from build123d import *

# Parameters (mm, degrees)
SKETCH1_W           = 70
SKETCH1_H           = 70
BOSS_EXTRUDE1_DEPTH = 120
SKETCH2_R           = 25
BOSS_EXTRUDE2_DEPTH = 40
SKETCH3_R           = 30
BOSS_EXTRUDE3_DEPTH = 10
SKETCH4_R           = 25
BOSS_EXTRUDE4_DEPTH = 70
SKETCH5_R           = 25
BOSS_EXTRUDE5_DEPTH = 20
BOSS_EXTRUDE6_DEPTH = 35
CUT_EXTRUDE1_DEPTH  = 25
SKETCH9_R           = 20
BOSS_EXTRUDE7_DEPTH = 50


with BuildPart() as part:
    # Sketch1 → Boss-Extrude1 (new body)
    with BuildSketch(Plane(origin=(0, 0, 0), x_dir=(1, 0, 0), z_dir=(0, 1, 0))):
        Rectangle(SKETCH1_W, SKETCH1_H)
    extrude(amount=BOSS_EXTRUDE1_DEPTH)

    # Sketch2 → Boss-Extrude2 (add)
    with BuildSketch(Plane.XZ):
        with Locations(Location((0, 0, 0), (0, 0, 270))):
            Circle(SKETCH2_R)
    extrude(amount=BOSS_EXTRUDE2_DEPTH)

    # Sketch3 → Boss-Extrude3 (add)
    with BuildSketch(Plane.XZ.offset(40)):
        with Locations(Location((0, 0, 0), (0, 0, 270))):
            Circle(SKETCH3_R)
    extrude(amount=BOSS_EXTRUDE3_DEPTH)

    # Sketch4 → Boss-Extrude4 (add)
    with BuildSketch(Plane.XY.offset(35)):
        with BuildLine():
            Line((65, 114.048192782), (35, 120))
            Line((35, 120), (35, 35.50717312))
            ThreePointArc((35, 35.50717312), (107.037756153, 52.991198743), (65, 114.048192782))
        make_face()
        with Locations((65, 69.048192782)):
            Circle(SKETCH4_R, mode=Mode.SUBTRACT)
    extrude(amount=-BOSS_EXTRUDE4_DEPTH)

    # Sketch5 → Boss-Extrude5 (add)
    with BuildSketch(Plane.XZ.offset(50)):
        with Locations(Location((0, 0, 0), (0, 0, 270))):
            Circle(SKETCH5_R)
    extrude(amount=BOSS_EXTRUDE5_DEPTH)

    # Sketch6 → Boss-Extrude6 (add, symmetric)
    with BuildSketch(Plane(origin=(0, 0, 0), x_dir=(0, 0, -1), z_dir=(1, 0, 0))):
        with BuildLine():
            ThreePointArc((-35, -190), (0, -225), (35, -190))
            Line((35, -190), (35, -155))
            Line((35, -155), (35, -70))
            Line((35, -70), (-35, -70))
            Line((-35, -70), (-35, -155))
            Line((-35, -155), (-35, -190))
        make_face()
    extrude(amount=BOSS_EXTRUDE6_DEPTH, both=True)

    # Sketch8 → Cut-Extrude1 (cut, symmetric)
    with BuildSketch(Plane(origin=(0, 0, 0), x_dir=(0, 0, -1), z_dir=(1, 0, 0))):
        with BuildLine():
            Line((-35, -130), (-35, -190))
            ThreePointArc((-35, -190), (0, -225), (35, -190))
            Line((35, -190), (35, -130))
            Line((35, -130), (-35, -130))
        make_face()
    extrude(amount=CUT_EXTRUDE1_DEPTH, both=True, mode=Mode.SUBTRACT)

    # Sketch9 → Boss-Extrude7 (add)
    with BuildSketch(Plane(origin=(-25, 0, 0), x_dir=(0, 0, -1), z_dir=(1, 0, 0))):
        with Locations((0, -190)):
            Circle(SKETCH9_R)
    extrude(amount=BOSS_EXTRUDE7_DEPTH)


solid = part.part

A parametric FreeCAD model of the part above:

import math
import FreeCAD as App
import Part
import Sketcher

V = App.Vector


def add_polygon(sketch, points):
    """Adds a closed chain of lines whose ends are joined by coincident constraints."""
    first, n = sketch.GeometryCount, len(points)
    for a, b in zip(points, points[1:] + points[:1]):
        sketch.addGeometry(Part.LineSegment(App.Vector(*a, 0), App.Vector(*b, 0)), False)
    for i in range(n):
        sketch.addConstraint(Sketcher.Constraint("Coincident", first + i, 2, first + (i + 1) % n, 1))

doc = App.newDocument("Part")
params = doc.addObject("Spreadsheet::Sheet", "Params")
for row, (alias, value) in enumerate([
    ("sketch1_width", "70 mm"),
    ("pad1_length", "120 mm"),
    ("sketch2_diameter", "50 mm"),
    ("pad2_length", "40 mm"),
    ("sketch3_diameter", "60 mm"),
    ("pad3_length", "10 mm"),
    ("sketch4_diameter", "50 mm"),
    ("sketch4_radius", "45 mm"),
    ("pad4_length", "70 mm"),
    ("sketch5_diameter", "50 mm"),
    ("pad5_length", "20 mm"),
    ("sketch6_radius", "35 mm"),
    ("sketch6_width", "120 mm"),
    ("pad6_length", "70 mm"),
    ("sketch7_radius", "35 mm"),
    ("sketch7_width", "60 mm"),
    ("pocket1_length", "50 mm"),
    ("sketch8_diameter", "40 mm"),
    ("pad7_length", "50 mm"),
], start=1):
    params.set(f"A{row}", alias)
    params.set(f"B{row}", "=" + value)
    params.setAlias(f"B{row}", alias)

body = doc.addObject("PartDesign::Body", "Body")

# Sketch on XZ plane
sketch1 = body.newObject("Sketcher::SketchObject", "Sketch")
sketch1.AttachmentSupport = (doc.getObject("XZ_Plane"), [""])
sketch1.MapMode = "FlatFace"
add_polygon(sketch1, [(-35, -35), (-35, 35), (35, 35), (35, -35)])  # lines 0-3
sketch1.addConstraint(Sketcher.Constraint("Vertical", 0))
sketch1.addConstraint(Sketcher.Constraint("Horizontal", 1))
sketch1.addConstraint(Sketcher.Constraint("Vertical", 2))
sketch1.addConstraint(Sketcher.Constraint("Horizontal", 3))
sketch1.addConstraint(Sketcher.Constraint("Symmetric", 0, 2, 2, 2, -1, 1))
sketch1.addConstraint(Sketcher.Constraint("Equal", 3, 0))
sketch1.addConstraint(Sketcher.Constraint("DistanceX", 1, 1, 1, 2, 70.0))
sketch1.setExpression("Constraints[10]", "Params.sketch1_width")
pad1 = body.newObject("PartDesign::Pad", "Pad")
pad1.Profile = sketch1
pad1.setExpression("Length", "Params.pad1_length")
pad1.Reversed = True

# Sketch on XZ plane
sketch2 = body.newObject("Sketcher::SketchObject", "Sketch001")
sketch2.AttachmentSupport = (doc.getObject("XZ_Plane"), [""])
sketch2.MapMode = "FlatFace"
sketch2.addGeometry(Part.Circle(V(0, 0, 0), V(0, 0, 1), 25), False)
sketch2.addConstraint(Sketcher.Constraint("Coincident", 0, 3, -1, 1))
sketch2.addConstraint(Sketcher.Constraint("Diameter", 0, 50.0))
sketch2.setExpression("Constraints[1]", "Params.sketch2_diameter")
pad2 = body.newObject("PartDesign::Pad", "Pad001")
pad2.Profile = sketch2
pad2.setExpression("Length", "Params.pad2_length")

# Sketch on XZ plane
sketch3 = body.newObject("Sketcher::SketchObject", "Sketch002")
sketch3.AttachmentSupport = (doc.getObject("XZ_Plane"), [""])
sketch3.MapMode = "FlatFace"
sketch3.AttachmentOffset = App.Placement(V(0, 0, 40), App.Rotation())
sketch3.addGeometry(Part.Circle(V(0, 0, 0), V(0, 0, 1), 30), False)
sketch3.addConstraint(Sketcher.Constraint("Coincident", 0, 3, -1, 1))
sketch3.addConstraint(Sketcher.Constraint("Diameter", 0, 60.0))
sketch3.setExpression("Constraints[1]", "Params.sketch3_diameter")
pad3 = body.newObject("PartDesign::Pad", "Pad002")
pad3.Profile = sketch3
pad3.setExpression("Length", "Params.pad3_length")

# Sketch on XY plane
sketch4 = body.newObject("Sketcher::SketchObject", "Sketch003")
sketch4.AttachmentSupport = (doc.getObject("XY_Plane"), [""])
sketch4.MapMode = "FlatFace"
sketch4.AttachmentOffset = App.Placement(V(0, 0, 35), App.Rotation())
sketch4.addGeometry(Part.LineSegment(V(65, 114.048193, 0), V(35, 120, 0)), False)
sketch4.addGeometry(Part.LineSegment(V(35, 120, 0), V(35, 35.507173, 0)), False)
sketch4.addGeometry(Part.ArcOfCircle(Part.Circle(V(65, 69.048193, 0), V(0, 0, 1), 45), math.radians(-131.810315), math.radians(90)), False)
sketch4.addGeometry(Part.Circle(V(65, 69.048193, 0), V(0, 0, 1), 25), False)
sketch4.addConstraint(Sketcher.Constraint("Coincident", 0, 2, 1, 1))
sketch4.addConstraint(Sketcher.Constraint("Coincident", 1, 2, 2, 1))
sketch4.addConstraint(Sketcher.Constraint("Coincident", 2, 2, 0, 1))
sketch4.addConstraint(Sketcher.Constraint("Vertical", 1))
sketch4.addConstraint(Sketcher.Constraint("Coincident", 3, 3, 2, 3))
sketch4.addConstraint(Sketcher.Constraint("Vertical", 3, 3, 2, 2))
sketch4.addConstraint(Sketcher.Constraint("Diameter", 3, 50.0))
sketch4.addConstraint(Sketcher.Constraint("Radius", 2, 45.0))
sketch4.addConstraint(Sketcher.Constraint("DistanceX", -1, 1, 2, 3, 65.0))
sketch4.addConstraint(Sketcher.Constraint("DistanceX", -1, 1, 0, 2, 35.0))
sketch4.addConstraint(Sketcher.Constraint("DistanceY", -1, 1, 0, 2, 120.0))
sketch4.addConstraint(Sketcher.Constraint("DistanceY", 1, 2, 1, 1, 84.492827))
sketch4.setExpression("Constraints[6]", "Params.sketch4_diameter")
sketch4.setExpression("Constraints[7]", "Params.sketch4_radius")
pad4 = body.newObject("PartDesign::Pad", "Pad003")
pad4.Profile = sketch4
pad4.setExpression("Length", "Params.pad4_length")
pad4.Reversed = True

# Sketch on XZ plane
sketch5 = body.newObject("Sketcher::SketchObject", "Sketch004")
sketch5.AttachmentSupport = (doc.getObject("XZ_Plane"), [""])
sketch5.MapMode = "FlatFace"
sketch5.AttachmentOffset = App.Placement(V(0, 0, 50), App.Rotation())
sketch5.addGeometry(Part.Circle(V(0, 0, 0), V(0, 0, 1), 25), False)
sketch5.addConstraint(Sketcher.Constraint("Coincident", 0, 3, -1, 1))
sketch5.addConstraint(Sketcher.Constraint("Diameter", 0, 50.0))
sketch5.setExpression("Constraints[1]", "Params.sketch5_diameter")
pad5 = body.newObject("PartDesign::Pad", "Pad004")
pad5.Profile = sketch5
pad5.setExpression("Length", "Params.pad5_length")

# Sketch on YZ plane
sketch6 = body.newObject("Sketcher::SketchObject", "Sketch005")
sketch6.AttachmentSupport = (doc.getObject("YZ_Plane"), [""])
sketch6.MapMode = "FlatFace"
sketch6.addGeometry(Part.ArcOfCircle(Part.Circle(V(-190, 0, 0), V(0, 0, 1), 35), math.radians(90), math.radians(270)), False)
sketch6.addGeometry(Part.LineSegment(V(-190, -35, 0), V(-70, -35, 0)), False)
sketch6.addGeometry(Part.LineSegment(V(-70, -35, 0), V(-70, 35, 0)), False)
sketch6.addGeometry(Part.LineSegment(V(-70, 35, 0), V(-190, 35, 0)), False)
sketch6.addConstraint(Sketcher.Constraint("Tangent", 0, 2, 1, 1))
sketch6.addConstraint(Sketcher.Constraint("Coincident", 1, 2, 2, 1))
sketch6.addConstraint(Sketcher.Constraint("Coincident", 2, 2, 3, 1))
sketch6.addConstraint(Sketcher.Constraint("Tangent", 3, 2, 0, 1))
sketch6.addConstraint(Sketcher.Constraint("Horizontal", 1))
sketch6.addConstraint(Sketcher.Constraint("Vertical", 2))
sketch6.addConstraint(Sketcher.Constraint("Horizontal", 3))
sketch6.addConstraint(Sketcher.Constraint("PointOnObject", 0, 3, -1))
sketch6.addConstraint(Sketcher.Constraint("Radius", 0, 35.0))
sketch6.addConstraint(Sketcher.Constraint("DistanceX", 1, 1, 1, 2, 120.0))
sketch6.addConstraint(Sketcher.Constraint("DistanceX", 0, 3, -1, 1, 190.0))
sketch6.setExpression("Constraints[8]", "Params.sketch6_radius")
sketch6.setExpression("Constraints[9]", "Params.sketch6_width")
pad6 = body.newObject("PartDesign::Pad", "Pad005")
pad6.Profile = sketch6
pad6.setExpression("Length", "Params.pad6_length")
pad6.Midplane = True

# Sketch on YZ plane
sketch7 = body.newObject("Sketcher::SketchObject", "Sketch006")
sketch7.AttachmentSupport = (doc.getObject("YZ_Plane"), [""])
sketch7.MapMode = "FlatFace"
sketch7.addGeometry(Part.LineSegment(V(-130, 35, 0), V(-190, 35, 0)), False)
sketch7.addGeometry(Part.ArcOfCircle(Part.Circle(V(-190, 0, 0), V(0, 0, 1), 35), math.radians(90), math.radians(270)), False)
sketch7.addGeometry(Part.LineSegment(V(-190, -35, 0), V(-130, -35, 0)), False)
sketch7.addGeometry(Part.LineSegment(V(-130, -35, 0), V(-130, 35, 0)), False)
sketch7.addConstraint(Sketcher.Constraint("Tangent", 0, 2, 1, 1))
sketch7.addConstraint(Sketcher.Constraint("Tangent", 1, 2, 2, 1))
sketch7.addConstraint(Sketcher.Constraint("Coincident", 2, 2, 3, 1))
sketch7.addConstraint(Sketcher.Constraint("Coincident", 3, 2, 0, 1))
sketch7.addConstraint(Sketcher.Constraint("Horizontal", 0))
sketch7.addConstraint(Sketcher.Constraint("Horizontal", 2))
sketch7.addConstraint(Sketcher.Constraint("Vertical", 3))
sketch7.addConstraint(Sketcher.Constraint("PointOnObject", 1, 3, -1))
sketch7.addConstraint(Sketcher.Constraint("Radius", 1, 35.0))
sketch7.addConstraint(Sketcher.Constraint("DistanceX", 0, 2, 0, 1, 60.0))
sketch7.addConstraint(Sketcher.Constraint("DistanceX", 1, 3, -1, 1, 190.0))
sketch7.setExpression("Constraints[8]", "Params.sketch7_radius")
sketch7.setExpression("Constraints[9]", "Params.sketch7_width")
pocket1 = body.newObject("PartDesign::Pocket", "Pocket")
pocket1.Profile = sketch7
pocket1.setExpression("Length", "Params.pocket1_length")
pocket1.Midplane = True

# Sketch on YZ plane
sketch8 = body.newObject("Sketcher::SketchObject", "Sketch007")
sketch8.AttachmentSupport = (doc.getObject("YZ_Plane"), [""])
sketch8.MapMode = "FlatFace"
sketch8.AttachmentOffset = App.Placement(V(0, 0, -25), App.Rotation())
sketch8.addGeometry(Part.Circle(V(-190, 0, 0), V(0, 0, 1), 20), False)
sketch8.addConstraint(Sketcher.Constraint("PointOnObject", 0, 3, -1))
sketch8.addConstraint(Sketcher.Constraint("Diameter", 0, 40.0))
sketch8.addConstraint(Sketcher.Constraint("DistanceX", 0, 3, -1, 1, 190.0))
sketch8.setExpression("Constraints[1]", "Params.sketch8_diameter")
pad7 = body.newObject("PartDesign::Pad", "Pad006")
pad7.Profile = sketch8
pad7.setExpression("Length", "Params.pad7_length")

doc.recompute()
